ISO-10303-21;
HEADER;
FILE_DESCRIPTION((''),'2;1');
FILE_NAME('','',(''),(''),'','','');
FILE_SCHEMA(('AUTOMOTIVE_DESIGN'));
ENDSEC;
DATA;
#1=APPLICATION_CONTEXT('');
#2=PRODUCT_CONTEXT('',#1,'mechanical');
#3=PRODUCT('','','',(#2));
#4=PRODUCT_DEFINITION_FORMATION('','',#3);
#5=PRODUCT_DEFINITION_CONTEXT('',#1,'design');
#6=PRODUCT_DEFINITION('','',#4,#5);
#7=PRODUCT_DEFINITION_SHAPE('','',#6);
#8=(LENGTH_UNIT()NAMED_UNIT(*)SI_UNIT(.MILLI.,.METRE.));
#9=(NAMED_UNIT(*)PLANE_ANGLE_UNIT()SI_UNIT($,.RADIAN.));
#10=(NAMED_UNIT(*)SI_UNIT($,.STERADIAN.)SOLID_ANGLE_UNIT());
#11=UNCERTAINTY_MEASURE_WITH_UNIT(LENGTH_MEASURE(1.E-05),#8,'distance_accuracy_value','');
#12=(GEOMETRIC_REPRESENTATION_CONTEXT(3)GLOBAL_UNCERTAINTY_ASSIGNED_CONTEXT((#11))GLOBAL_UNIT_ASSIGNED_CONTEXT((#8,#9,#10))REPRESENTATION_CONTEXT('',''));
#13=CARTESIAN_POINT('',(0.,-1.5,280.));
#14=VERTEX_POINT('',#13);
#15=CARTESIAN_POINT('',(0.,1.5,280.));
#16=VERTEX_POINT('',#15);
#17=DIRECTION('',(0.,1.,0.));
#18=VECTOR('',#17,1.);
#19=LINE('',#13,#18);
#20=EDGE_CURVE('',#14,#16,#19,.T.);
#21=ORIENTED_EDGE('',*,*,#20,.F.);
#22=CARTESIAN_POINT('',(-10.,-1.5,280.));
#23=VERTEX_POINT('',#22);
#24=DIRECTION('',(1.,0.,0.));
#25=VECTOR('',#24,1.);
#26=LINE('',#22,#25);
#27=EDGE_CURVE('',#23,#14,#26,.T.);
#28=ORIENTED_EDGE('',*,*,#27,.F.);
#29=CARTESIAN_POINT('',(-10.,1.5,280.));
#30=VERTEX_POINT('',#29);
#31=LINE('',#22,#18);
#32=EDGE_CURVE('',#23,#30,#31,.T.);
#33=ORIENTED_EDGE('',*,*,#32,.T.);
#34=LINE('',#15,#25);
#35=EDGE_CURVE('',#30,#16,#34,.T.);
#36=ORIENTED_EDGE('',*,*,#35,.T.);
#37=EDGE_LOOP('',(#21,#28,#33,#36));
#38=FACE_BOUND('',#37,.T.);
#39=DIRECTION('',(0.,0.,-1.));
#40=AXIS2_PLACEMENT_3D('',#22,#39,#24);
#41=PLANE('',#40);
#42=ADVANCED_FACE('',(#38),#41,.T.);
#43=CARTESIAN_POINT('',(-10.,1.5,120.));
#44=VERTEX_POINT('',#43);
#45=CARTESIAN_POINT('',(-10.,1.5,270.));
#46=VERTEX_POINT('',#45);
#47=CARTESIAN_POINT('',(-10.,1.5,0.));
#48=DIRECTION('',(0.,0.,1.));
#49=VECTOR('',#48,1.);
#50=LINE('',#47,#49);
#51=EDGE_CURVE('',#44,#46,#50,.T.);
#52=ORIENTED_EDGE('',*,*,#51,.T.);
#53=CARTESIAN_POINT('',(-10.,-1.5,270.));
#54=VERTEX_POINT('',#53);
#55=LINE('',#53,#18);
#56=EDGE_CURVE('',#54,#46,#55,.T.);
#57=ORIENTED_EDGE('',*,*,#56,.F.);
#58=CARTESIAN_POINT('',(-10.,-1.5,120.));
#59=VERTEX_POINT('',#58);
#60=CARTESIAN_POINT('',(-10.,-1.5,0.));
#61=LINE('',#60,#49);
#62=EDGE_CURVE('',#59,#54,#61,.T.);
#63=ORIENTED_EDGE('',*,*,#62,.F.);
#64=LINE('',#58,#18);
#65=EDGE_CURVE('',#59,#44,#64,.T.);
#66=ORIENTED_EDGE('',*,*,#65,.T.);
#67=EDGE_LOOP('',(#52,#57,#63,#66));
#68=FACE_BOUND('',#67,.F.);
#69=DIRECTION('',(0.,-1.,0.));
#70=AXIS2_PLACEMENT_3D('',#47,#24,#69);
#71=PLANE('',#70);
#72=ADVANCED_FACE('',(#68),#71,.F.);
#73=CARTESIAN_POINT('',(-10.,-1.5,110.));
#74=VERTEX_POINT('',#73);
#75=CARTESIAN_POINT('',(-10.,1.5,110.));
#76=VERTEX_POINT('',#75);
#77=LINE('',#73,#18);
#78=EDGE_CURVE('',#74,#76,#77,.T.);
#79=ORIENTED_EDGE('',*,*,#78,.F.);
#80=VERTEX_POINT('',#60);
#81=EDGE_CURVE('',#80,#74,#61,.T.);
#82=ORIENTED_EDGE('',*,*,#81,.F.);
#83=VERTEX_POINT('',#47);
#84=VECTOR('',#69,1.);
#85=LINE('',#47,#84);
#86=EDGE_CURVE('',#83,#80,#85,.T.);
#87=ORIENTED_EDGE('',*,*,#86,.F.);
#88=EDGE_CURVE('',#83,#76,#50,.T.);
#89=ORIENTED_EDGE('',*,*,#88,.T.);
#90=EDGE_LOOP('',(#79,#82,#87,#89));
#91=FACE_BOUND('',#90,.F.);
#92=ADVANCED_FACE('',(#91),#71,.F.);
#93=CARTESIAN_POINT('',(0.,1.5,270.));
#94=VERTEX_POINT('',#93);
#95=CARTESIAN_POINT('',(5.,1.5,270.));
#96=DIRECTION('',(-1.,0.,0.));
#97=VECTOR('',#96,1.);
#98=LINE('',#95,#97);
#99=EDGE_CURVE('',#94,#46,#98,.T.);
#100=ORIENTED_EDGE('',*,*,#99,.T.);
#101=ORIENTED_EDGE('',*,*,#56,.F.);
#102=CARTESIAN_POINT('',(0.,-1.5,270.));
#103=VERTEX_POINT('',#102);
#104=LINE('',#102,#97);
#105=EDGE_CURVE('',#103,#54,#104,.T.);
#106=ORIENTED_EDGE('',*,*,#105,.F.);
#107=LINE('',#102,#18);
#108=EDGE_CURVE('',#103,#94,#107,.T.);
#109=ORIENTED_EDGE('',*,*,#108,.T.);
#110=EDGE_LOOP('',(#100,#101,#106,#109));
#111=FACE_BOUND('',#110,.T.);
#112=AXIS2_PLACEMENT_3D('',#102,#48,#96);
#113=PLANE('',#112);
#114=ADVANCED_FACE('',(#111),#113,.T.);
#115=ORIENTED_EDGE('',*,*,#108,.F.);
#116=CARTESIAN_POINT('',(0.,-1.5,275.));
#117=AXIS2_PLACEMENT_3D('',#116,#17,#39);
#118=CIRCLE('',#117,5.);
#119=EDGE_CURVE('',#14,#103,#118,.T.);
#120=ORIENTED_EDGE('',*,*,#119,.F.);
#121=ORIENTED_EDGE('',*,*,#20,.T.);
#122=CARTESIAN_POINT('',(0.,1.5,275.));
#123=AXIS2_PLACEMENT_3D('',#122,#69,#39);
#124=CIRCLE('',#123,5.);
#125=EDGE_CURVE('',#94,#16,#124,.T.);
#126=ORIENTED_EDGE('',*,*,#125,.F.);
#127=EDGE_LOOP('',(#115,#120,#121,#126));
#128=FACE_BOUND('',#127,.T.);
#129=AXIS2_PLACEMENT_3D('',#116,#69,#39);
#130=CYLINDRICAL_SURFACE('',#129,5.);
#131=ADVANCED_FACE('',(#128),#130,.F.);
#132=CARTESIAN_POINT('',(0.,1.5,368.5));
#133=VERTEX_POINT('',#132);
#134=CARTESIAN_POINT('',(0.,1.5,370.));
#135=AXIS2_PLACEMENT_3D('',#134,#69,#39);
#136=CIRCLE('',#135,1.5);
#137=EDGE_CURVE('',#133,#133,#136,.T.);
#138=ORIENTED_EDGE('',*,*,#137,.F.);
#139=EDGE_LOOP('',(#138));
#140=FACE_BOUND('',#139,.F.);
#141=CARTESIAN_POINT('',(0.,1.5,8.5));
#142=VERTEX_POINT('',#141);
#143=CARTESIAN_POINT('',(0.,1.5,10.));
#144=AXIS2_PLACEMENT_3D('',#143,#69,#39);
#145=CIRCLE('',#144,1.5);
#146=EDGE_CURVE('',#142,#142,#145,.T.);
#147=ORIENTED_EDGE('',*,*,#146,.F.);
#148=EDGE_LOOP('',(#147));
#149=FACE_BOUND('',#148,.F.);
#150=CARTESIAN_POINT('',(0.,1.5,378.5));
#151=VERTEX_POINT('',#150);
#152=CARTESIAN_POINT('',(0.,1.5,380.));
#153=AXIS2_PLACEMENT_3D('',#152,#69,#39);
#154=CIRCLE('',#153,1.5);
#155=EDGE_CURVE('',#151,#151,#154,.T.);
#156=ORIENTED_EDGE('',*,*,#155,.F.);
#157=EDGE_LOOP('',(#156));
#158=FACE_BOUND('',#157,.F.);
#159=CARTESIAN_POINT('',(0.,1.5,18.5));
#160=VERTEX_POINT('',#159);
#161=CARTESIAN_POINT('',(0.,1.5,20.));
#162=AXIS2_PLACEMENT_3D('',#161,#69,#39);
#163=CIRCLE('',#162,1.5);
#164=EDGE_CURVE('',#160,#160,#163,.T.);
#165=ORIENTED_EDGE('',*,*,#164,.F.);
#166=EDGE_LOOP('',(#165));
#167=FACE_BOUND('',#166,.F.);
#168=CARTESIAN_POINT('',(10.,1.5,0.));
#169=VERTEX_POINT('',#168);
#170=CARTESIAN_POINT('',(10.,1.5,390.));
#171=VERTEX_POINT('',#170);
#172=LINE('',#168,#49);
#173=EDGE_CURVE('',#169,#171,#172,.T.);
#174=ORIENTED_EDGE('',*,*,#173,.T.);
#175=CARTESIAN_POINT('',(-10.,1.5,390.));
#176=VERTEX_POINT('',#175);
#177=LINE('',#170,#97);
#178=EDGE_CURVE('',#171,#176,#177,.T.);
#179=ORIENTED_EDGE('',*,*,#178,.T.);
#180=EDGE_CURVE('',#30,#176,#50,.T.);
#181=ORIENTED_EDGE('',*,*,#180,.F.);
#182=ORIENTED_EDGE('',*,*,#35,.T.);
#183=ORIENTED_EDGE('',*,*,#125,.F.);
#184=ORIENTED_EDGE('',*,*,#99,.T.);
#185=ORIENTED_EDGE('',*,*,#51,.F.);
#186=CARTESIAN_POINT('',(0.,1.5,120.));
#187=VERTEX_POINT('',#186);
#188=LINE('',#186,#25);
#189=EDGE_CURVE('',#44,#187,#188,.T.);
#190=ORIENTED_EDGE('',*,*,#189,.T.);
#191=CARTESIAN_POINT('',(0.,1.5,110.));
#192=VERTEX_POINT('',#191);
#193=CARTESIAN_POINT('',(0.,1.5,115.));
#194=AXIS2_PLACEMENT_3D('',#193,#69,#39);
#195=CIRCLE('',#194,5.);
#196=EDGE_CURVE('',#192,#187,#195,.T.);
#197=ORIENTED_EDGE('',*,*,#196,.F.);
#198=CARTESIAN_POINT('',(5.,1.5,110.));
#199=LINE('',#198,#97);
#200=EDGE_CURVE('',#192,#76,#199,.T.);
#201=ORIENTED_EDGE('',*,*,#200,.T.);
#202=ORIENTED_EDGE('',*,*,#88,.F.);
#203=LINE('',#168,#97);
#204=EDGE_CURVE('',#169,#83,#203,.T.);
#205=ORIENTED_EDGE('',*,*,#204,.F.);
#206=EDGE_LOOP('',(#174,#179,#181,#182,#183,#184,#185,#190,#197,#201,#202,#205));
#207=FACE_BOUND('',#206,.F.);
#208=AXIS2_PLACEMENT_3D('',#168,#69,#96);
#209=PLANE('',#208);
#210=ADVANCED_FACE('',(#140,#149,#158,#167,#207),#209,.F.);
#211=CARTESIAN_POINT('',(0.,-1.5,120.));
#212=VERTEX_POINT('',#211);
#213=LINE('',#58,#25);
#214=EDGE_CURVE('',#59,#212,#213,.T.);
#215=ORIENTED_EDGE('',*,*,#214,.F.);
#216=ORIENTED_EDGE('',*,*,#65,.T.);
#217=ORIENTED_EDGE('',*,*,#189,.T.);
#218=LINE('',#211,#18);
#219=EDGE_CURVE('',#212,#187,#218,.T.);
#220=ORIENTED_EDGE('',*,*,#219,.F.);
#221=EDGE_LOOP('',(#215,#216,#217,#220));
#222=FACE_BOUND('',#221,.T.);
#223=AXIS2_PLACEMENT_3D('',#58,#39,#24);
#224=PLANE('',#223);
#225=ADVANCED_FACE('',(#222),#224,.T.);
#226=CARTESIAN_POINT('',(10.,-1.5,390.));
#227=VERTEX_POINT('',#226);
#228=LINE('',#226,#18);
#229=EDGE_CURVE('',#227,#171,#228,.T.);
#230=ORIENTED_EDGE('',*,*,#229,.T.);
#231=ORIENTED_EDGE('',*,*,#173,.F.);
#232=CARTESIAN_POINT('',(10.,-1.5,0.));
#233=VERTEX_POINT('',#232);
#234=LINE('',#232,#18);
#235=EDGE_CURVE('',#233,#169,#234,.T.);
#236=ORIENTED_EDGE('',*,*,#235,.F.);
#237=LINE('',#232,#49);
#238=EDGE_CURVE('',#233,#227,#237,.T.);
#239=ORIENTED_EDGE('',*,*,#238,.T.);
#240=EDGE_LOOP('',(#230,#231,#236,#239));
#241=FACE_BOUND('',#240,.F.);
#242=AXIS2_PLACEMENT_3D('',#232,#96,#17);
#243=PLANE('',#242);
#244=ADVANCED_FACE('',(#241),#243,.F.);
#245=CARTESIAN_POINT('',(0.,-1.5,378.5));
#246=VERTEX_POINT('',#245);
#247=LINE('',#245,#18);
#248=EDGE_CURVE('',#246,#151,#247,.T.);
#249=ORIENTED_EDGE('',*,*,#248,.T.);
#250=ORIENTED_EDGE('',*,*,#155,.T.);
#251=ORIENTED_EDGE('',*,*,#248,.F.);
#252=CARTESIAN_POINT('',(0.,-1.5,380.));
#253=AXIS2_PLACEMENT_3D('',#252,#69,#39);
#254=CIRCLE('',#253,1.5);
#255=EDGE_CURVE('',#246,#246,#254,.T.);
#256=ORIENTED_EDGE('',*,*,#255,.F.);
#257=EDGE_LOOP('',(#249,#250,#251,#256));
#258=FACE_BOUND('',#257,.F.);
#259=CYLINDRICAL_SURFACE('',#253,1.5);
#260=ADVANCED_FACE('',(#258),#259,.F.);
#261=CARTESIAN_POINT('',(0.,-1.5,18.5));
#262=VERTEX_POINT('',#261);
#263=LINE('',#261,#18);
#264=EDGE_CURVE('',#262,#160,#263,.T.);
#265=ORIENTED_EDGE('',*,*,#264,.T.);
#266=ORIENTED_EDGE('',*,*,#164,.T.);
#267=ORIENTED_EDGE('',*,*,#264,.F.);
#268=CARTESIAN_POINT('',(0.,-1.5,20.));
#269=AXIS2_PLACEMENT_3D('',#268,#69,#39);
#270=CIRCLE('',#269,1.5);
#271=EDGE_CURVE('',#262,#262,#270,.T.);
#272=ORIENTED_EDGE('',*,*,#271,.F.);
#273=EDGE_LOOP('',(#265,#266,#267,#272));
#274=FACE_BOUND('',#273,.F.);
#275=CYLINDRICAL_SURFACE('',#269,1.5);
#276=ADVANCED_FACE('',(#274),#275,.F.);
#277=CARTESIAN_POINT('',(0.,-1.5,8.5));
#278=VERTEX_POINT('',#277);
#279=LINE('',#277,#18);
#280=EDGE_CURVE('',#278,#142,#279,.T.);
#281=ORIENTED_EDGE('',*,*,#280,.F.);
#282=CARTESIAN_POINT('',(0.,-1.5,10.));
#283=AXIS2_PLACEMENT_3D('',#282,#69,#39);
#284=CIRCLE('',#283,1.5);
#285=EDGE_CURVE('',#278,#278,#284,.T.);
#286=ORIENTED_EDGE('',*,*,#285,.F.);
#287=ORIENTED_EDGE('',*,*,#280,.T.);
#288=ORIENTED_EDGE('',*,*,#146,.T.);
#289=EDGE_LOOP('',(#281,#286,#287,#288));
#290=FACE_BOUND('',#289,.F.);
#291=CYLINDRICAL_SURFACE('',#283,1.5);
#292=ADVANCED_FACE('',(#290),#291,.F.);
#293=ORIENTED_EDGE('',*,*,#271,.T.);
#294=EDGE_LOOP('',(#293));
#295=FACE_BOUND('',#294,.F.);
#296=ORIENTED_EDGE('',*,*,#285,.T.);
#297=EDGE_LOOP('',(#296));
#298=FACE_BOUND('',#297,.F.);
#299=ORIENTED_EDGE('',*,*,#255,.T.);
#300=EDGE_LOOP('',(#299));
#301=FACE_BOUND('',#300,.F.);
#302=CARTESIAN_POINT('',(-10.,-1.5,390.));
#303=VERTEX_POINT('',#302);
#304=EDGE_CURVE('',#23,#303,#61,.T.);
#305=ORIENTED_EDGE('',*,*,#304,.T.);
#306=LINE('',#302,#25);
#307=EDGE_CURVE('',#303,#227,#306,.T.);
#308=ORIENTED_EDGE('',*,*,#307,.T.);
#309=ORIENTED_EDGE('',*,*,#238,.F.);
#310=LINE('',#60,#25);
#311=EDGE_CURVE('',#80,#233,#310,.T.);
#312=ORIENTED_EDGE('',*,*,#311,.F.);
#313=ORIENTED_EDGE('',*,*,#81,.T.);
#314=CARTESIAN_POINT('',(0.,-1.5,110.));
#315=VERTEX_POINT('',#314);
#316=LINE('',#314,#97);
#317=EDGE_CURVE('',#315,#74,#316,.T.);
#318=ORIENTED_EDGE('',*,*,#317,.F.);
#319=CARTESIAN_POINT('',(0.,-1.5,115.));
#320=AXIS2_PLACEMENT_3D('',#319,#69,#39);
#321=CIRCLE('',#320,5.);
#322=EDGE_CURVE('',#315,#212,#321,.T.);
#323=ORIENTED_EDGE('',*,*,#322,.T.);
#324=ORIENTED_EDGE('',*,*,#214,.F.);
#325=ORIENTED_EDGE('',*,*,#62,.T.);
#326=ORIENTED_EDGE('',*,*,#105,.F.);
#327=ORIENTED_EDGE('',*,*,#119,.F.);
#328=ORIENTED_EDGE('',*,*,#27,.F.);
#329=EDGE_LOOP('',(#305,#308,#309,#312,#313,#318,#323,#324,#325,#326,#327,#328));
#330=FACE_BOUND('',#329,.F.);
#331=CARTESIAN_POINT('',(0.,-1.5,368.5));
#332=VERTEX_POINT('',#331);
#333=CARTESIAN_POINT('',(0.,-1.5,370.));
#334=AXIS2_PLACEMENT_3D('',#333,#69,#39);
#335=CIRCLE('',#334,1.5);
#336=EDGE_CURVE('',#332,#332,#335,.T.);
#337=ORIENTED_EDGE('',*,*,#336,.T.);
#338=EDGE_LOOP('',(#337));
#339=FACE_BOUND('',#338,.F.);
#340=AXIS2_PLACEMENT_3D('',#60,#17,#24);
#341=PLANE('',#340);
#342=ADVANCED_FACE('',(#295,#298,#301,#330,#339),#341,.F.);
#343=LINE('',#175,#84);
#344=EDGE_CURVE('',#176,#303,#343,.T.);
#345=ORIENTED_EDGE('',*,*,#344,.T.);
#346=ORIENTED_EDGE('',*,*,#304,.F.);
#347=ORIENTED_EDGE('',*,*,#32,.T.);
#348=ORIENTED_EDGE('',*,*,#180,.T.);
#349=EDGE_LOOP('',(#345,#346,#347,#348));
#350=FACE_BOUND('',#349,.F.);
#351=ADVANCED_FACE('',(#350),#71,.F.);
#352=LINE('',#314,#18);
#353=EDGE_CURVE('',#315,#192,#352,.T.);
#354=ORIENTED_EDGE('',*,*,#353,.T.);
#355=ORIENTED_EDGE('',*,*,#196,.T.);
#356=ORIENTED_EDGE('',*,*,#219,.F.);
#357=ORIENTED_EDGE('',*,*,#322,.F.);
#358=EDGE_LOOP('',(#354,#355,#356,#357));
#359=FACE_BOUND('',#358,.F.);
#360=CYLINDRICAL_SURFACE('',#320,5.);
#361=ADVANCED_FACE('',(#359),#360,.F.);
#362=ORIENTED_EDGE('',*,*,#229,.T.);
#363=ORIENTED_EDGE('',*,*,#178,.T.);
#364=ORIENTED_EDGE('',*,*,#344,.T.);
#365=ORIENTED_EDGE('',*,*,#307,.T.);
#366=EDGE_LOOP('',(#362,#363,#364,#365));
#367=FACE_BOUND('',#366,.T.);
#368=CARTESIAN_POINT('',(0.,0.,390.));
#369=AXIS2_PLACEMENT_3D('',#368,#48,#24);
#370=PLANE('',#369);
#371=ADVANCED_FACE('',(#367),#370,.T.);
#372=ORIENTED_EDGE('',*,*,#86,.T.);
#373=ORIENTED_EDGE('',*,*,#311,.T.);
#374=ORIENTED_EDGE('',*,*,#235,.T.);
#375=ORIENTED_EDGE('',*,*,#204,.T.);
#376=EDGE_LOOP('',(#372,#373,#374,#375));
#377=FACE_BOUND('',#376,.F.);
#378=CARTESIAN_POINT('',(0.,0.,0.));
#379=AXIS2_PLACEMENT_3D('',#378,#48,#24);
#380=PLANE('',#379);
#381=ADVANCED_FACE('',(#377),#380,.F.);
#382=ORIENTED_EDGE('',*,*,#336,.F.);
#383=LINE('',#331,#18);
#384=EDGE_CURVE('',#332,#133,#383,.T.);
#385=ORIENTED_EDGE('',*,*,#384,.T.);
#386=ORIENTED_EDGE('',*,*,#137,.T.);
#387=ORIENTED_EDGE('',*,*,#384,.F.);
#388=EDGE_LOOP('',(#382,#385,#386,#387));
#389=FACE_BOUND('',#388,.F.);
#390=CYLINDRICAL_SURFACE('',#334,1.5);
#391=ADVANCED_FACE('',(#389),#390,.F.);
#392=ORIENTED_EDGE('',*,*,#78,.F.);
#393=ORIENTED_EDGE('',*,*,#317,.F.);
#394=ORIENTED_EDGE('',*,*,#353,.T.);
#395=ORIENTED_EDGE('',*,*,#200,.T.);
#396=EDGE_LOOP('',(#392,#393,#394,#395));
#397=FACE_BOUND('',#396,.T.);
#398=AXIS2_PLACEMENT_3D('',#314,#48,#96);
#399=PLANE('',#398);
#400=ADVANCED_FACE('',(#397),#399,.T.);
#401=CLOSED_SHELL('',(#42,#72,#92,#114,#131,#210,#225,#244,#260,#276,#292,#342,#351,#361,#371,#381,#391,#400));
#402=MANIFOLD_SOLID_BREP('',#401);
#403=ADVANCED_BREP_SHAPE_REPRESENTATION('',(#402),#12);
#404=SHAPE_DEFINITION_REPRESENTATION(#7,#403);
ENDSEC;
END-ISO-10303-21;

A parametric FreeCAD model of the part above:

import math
import FreeCAD as App
import Part
import Sketcher


def add_polygon(sketch, points):
    """Adds a closed chain of lines whose ends are joined by coincident constraints."""
    first, n = sketch.GeometryCount, len(points)
    for a, b in zip(points, points[1:] + points[:1]):
        sketch.addGeometry(Part.LineSegment(App.Vector(*a, 0), App.Vector(*b, 0)), False)
    for i in range(n):
        sketch.addConstraint(Sketcher.Constraint("Coincident", first + i, 2, first + (i + 1) % n, 1))

doc = App.newDocument("Part")
params = doc.addObject("Spreadsheet::Sheet", "Params")
for row, (alias, value) in enumerate([
    ("sketch1_height", "3 mm"),
    ("pad1_length", "390 mm"),
    ("sketch2_diameter", "3 mm"),
    ("pocket1_length", "784.3163 mm"),
    ("sketch3_radius", "5 mm"),
    ("pocket2_length", "359.7683 mm"),
], start=1):
    params.set(f"A{row}", alias)
    params.set(f"B{row}", "=" + value)
    params.setAlias(f"B{row}", alias)

body = doc.addObject("PartDesign::Body", "Body")

sketch1 = body.newObject("Sketcher::SketchObject", "Sketch")
sketch1.AttachmentSupport = (doc.getObject("XY_Plane"), [""])
sketch1.MapMode = "FlatFace"
add_polygon(sketch1, [(-10, 1.5), (-10, -1.5), (10, -1.5), (10, 1.5)])
sketch1.addConstraint([
    Sketcher.Constraint("Vertical", 0),
    Sketcher.Constraint("Horizontal", 1),
    Sketcher.Constraint("Vertical", 2),
    Sketcher.Constraint("Horizontal", 3),
    Sketcher.Constraint("Symmetric", 0, 2, 2, 2, -1, 1),
    Sketcher.Constraint("DistanceX", 0, 2, -1, 1, 10.0),
    Sketcher.Constraint("DistanceY", 0, 2, 0, 1, 3.0),
])
sketch1.setExpression("Constraints[10]", "Params.sketch1_height")
pad1 = body.newObject("PartDesign::Pad", "Pad")
pad1.Profile = sketch1
pad1.setExpression("Length", "Params.pad1_length")

sketch2 = body.newObject("Sketcher::SketchObject", "Sketch001")
sketch2.AttachmentSupport = (doc.getObject("XZ_Plane"), [""])
sketch2.MapMode = "FlatFace"
sketch2.AttachmentOffset = App.Placement(App.Vector(0, 0, 1.5), App.Rotation())
sketch2.addGeometry([
    Part.Circle(App.Vector(0, 370, 0), App.Vector(0, 0, 1), 1.5),
    Part.Circle(App.Vector(0, 20, 0), App.Vector(0, 0, 1), 1.5),
    Part.Circle(App.Vector(0, 10, 0), App.Vector(0, 0, 1), 1.5),
    Part.Circle(App.Vector(0, 380, 0), App.Vector(0, 0, 1), 1.5),
], False)
sketch2.addConstraint([
    Sketcher.Constraint("Equal", 0, 1),
    Sketcher.Constraint("Equal", 1, 2),
    Sketcher.Constraint("Equal", 2, 3),
    Sketcher.Constraint("PointOnObject", 0, 3, -2),
    Sketcher.Constraint("PointOnObject", 1, 3, -2),
    Sketcher.Constraint("PointOnObject", 2, 3, -2),
    Sketcher.Constraint("PointOnObject", 3, 3, -2),
    Sketcher.Constraint("Diameter", 0, 3.0),
    Sketcher.Constraint("DistanceY", -1, 1, 0, 3, 370.0),
    Sketcher.Constraint("DistanceY", -1, 1, 1, 3, 20.0),
    Sketcher.Constraint("DistanceY", -1, 1, 2, 3, 10.0),
    Sketcher.Constraint("DistanceY", -1, 1, 3, 3, 380.0),
])
sketch2.setExpression("Constraints[7]", "Params.sketch2_diameter")
pocket1 = body.newObject("PartDesign::Pocket", "Pocket")
pocket1.Profile = sketch2
pocket1.setExpression("Length", "Params.pocket1_length")
pocket1.Midplane = True

sketch3 = body.newObject("Sketcher::SketchObject", "Sketch002")
sketch3.AttachmentSupport = (doc.getObject("XZ_Plane"), [""])
sketch3.MapMode = "FlatFace"
sketch3.AttachmentOffset = App.Placement(App.Vector(0, 0, 1.5), App.Rotation())
sketch3.addGeometry([
    Part.LineSegment(App.Vector(-10, 280, 0), App.Vector(-10, 270, 0)),
    Part.LineSegment(App.Vector(-10, 270, 0), App.Vector(0, 270, 0)),
    Part.ArcOfCircle(Part.Circle(App.Vector(0, 275, 0), App.Vector(0, 0, 1), 5), math.radians(-90), math.radians(90)),
    Part.LineSegment(App.Vector(0, 280, 0), App.Vector(-10, 280, 0)),
    Part.LineSegment(App.Vector(-10, 110, 0), App.Vector(0, 110, 0)),
    Part.ArcOfCircle(Part.Circle(App.Vector(0, 115, 0), App.Vector(0, 0, 1), 5), math.radians(-90), math.radians(90)),
    Part.LineSegment(App.Vector(0, 120, 0), App.Vector(-10, 120, 0)),
    Part.LineSegment(App.Vector(-10, 120, 0), App.Vector(-10, 110, 0)),
], False)
sketch3.addConstraint([
    Sketcher.Constraint("Coincident", 0, 2, 1, 1),
    Sketcher.Constraint("Tangent", 1, 2, 2, 1),
    Sketcher.Constraint("Tangent", 2, 2, 3, 1),
    Sketcher.Constraint("Coincident", 3, 2, 0, 1),
    Sketcher.Constraint("Tangent", 4, 2, 5, 1),
    Sketcher.Constraint("Tangent", 5, 2, 6, 1),
    Sketcher.Constraint("Coincident", 6, 2, 7, 1),
    Sketcher.Constraint("Coincident", 7, 2, 4, 1),
    Sketcher.Constraint("Vertical", 0),
    Sketcher.Constraint("Horizontal", 1),
    Sketcher.Constraint("Horizontal", 3),
    Sketcher.Constraint("Horizontal", 4),
    Sketcher.Constraint("Horizontal", 6),
    Sketcher.Constraint("Vertical", 7),
    Sketcher.Constraint("Equal", 2, 5),
    Sketcher.Constraint("PointOnObject", 2, 3, -2),
    Sketcher.Constraint("PointOnObject", 5, 3, -2),
    Sketcher.Constraint("Vertical", 3, 2, 6, 2),
    Sketcher.Constraint("Equal", 6, 0),
    Sketcher.Constraint("Radius", 2, 5.0),
    Sketcher.Constraint("DistanceY", -1, 1, 2, 3, 275.0),
    Sketcher.Constraint("DistanceY", -1, 1, 5, 3, 115.0),
])
sketch3.setExpression("Constraints[19]", "Params.sketch3_radius")
pocket2 = body.newObject("PartDesign::Pocket", "Pocket001")
pocket2.Profile = sketch3
pocket2.setExpression("Length", "Params.pocket2_length")

doc.recompute()
